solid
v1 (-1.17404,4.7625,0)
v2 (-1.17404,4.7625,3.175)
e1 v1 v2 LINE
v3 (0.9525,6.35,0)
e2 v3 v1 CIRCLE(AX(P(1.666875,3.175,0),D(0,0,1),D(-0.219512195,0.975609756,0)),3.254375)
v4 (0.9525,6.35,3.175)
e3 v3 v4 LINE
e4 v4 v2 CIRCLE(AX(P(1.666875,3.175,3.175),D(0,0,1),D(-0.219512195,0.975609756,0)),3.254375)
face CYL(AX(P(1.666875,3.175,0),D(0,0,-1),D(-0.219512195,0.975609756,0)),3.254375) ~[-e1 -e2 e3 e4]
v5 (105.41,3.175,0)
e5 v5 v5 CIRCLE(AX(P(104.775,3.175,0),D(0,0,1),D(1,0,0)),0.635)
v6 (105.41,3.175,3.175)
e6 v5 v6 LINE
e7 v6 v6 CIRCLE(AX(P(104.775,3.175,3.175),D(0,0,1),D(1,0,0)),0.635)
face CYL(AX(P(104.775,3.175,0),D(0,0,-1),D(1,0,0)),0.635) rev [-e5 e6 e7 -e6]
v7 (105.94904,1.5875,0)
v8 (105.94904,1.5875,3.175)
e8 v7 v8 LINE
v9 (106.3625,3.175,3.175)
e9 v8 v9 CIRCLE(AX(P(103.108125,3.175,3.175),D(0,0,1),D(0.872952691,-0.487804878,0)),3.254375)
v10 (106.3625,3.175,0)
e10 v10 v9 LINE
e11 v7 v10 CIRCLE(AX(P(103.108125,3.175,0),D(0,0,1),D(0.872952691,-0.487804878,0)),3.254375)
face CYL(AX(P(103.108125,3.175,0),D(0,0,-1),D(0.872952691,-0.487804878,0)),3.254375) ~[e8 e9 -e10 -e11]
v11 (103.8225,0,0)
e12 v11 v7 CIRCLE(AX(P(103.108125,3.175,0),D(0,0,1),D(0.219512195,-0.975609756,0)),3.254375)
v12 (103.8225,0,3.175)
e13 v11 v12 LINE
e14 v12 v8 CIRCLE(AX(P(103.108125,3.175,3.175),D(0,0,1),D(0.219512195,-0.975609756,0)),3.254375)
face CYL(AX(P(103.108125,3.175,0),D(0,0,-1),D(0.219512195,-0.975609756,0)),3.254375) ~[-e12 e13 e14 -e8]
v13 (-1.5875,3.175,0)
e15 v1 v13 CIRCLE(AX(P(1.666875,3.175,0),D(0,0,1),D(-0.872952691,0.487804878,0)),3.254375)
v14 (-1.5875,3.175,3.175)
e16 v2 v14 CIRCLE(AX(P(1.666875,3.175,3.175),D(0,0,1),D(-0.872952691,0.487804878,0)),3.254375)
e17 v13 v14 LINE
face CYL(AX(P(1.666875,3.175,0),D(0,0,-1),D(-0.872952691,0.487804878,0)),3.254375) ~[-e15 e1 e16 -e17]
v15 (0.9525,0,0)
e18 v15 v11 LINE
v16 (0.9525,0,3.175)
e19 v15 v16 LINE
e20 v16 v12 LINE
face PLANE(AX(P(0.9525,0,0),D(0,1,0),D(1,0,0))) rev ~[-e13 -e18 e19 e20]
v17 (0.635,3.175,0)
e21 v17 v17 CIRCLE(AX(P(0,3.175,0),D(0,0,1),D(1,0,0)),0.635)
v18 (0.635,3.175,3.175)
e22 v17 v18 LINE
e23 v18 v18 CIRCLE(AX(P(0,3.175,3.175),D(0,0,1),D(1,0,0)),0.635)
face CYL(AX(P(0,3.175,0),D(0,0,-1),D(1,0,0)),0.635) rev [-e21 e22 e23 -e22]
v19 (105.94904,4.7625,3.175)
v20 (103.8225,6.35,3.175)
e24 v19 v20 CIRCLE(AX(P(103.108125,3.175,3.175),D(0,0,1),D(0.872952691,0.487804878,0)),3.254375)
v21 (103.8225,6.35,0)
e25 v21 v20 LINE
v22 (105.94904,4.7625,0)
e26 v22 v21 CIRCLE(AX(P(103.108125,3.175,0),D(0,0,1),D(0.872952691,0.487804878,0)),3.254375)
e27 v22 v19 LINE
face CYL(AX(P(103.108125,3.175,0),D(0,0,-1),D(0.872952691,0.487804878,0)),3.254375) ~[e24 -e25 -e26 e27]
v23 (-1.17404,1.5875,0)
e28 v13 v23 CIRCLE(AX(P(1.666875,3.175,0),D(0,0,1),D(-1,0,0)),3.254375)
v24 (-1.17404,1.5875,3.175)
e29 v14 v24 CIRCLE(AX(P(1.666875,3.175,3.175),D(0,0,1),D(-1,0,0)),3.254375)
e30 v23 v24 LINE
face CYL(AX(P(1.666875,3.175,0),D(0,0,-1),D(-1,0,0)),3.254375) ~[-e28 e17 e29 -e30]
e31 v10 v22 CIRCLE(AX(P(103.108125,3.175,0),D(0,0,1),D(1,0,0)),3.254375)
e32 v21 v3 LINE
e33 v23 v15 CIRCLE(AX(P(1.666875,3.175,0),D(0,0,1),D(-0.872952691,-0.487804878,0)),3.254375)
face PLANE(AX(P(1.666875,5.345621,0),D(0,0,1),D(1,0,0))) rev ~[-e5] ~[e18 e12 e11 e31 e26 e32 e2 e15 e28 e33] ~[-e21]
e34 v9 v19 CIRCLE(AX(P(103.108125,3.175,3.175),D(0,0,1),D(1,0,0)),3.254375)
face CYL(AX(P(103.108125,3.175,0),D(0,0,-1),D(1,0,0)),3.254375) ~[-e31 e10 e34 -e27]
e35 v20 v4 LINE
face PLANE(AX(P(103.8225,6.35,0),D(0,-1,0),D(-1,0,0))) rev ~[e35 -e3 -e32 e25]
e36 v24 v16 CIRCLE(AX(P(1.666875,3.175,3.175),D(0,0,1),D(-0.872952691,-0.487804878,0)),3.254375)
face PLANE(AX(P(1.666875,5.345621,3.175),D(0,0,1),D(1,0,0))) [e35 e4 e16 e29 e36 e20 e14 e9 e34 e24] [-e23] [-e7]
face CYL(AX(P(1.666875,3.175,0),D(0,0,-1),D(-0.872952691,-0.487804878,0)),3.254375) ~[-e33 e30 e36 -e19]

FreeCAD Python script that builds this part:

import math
import FreeCAD as App
import Part
import Sketcher
Q = App.Units.Quantity

doc = App.newDocument("Part")
body = doc.addObject("PartDesign::Body", "Body")

# Sketch on XY plane
sketch1 = body.newObject("Sketcher::SketchObject", "Sketch")
sketch1.AttachmentSupport = (doc.getObject("XY_Plane"), [""])
sketch1.MapMode = "FlatFace"
sketch1.addGeometry(Part.ArcOfCircle(Part.Circle(App.Vector(1.7, 3.2, 0), App.Vector(0, 0, 1), 3.3), math.radians(103), math.radians(151)), False)
sketch1.addGeometry(Part.ArcOfCircle(Part.Circle(App.Vector(1.7, 3.2, 0), App.Vector(0, 0, 1), 3.3), math.radians(151), math.radians(180)), False)
sketch1.addGeometry(Part.ArcOfCircle(Part.Circle(App.Vector(1.7, 3.2, 0), App.Vector(0, 0, 1), 3.3), math.radians(180), math.radians(209)), False)
sketch1.addGeometry(Part.ArcOfCircle(Part.Circle(App.Vector(1.7, 3.2, 0), App.Vector(0, 0, 1), 3.3), math.radians(-151), math.radians(-103)), False)
sketch1.addGeometry(Part.LineSegment(App.Vector(1, 0, 0), App.Vector(103.8, 0, 0)), False)
sketch1.addGeometry(Part.ArcOfCircle(Part.Circle(App.Vector(103.1, 3.2, 0), App.Vector(0, 0, 1), 3.3), math.radians(-77), math.radians(-29)), False)
sketch1.addGeometry(Part.ArcOfCircle(Part.Circle(App.Vector(103.1, 3.2, 0), App.Vector(0, 0, 1), 3.3), math.radians(-29), math.radians(0)), False)
sketch1.addGeometry(Part.ArcOfCircle(Part.Circle(App.Vector(103.1, 3.2, 0), App.Vector(0, 0, 1), 3.3), math.radians(0), math.radians(29)), False)
sketch1.addGeometry(Part.ArcOfCircle(Part.Circle(App.Vector(103.1, 3.2, 0), App.Vector(0, 0, 1), 3.3), math.radians(29), math.radians(77)), False)
sketch1.addGeometry(Part.LineSegment(App.Vector(103.8, 6.3, 0), App.Vector(1, 6.3, 0)), False)
sketch1.addGeometry(Part.Circle(App.Vector(0, 3.2, 0), App.Vector(0, 0, 1), 0.6), False)
sketch1.addGeometry(Part.Circle(App.Vector(104.8, 3.2, 0), App.Vector(0, 0, 1), 0.6), False)
sketch1.addConstraint(Sketcher.Constraint("Tangent", 0, 2, 1, 1))
sketch1.addConstraint(Sketcher.Constraint("Tangent", 1, 2, 2, 1))
sketch1.addConstraint(Sketcher.Constraint("Tangent", 2, 2, 3, 1))
sketch1.addConstraint(Sketcher.Constraint("Coincident", 3, 2, 4, 1))
sketch1.addConstraint(Sketcher.Constraint("Coincident", 4, 2, 5, 1))
sketch1.addConstraint(Sketcher.Constraint("Tangent", 5, 2, 6, 1))
sketch1.addConstraint(Sketcher.Constraint("Tangent", 6, 2, 7, 1))
sketch1.addConstraint(Sketcher.Constraint("Tangent", 7, 2, 8, 1))
sketch1.addConstraint(Sketcher.Constraint("Coincident", 8, 2, 9, 1))
sketch1.addConstraint(Sketcher.Constraint("Coincident", 9, 2, 0, 1))
sketch1.addConstraint(Sketcher.Constraint("Horizontal", 4))
sketch1.addConstraint(Sketcher.Constraint("Horizontal", 9))
sketch1.addConstraint(Sketcher.Constraint("Coincident", 2, 3, 0, 3))
sketch1.addConstraint(Sketcher.Constraint("Coincident", 7, 3, 5, 3))
sketch1.addConstraint(Sketcher.Constraint("Equal", 2, 3))
sketch1.addConstraint(Sketcher.Constraint("Equal", 3, 5))
sketch1.addConstraint(Sketcher.Constraint("Equal", 7, 8))
sketch1.addConstraint(Sketcher.Constraint("Equal", 10, 11))
sketch1.addConstraint(Sketcher.Constraint("PointOnObject", 10, 3, -2))
sketch1.addConstraint(Sketcher.Constraint("PointOnObject", 3, 2, -1))
sketch1.addConstraint(Sketcher.Constraint("Horizontal", 3, 3, 5, 3))
sketch1.addConstraint(Sketcher.Constraint("Horizontal", 8, 3, 10, 3))
sketch1.addConstraint(Sketcher.Constraint("Horizontal", 10, 3, 11, 3))
sketch1.addConstraint(Sketcher.Constraint("Horizontal", 11, 3, 1, 2))
sketch1.addConstraint(Sketcher.Constraint("Horizontal", 2, 2, 5, 2))
sketch1.addConstraint(Sketcher.Constraint("Horizontal", 1, 2, 6, 2))
sketch1.addConstraint(Sketcher.Constraint("Horizontal", 0, 2, 7, 2))
sketch1.addConstraint(Sketcher.Constraint("Vertical", 0, 2, 2, 2))
sketch1.addConstraint(Sketcher.Constraint("Vertical", 4, 2, 8, 2))
sketch1.addConstraint(Sketcher.Constraint("Diameter", 10, Q("0.05 in")))
sketch1.addConstraint(Sketcher.Constraint("DistanceX", 4, 1, 4, 2, Q("4.05 in")))
sketch1.addConstraint(Sketcher.Constraint("DistanceY", -1, 1, 8, 2, Q("0.25 in")))
sketch1.addConstraint(Sketcher.Constraint("DistanceX", -1, 1, 11, 3, Q("4.125 in")))
sketch1.addConstraint(Sketcher.Constraint("DistanceY", -1, 1, 0, 2, Q("0.1875 in")))
sketch1.addConstraint(Sketcher.Constraint("DistanceX", 1, 2, -1, 1, Q("0.0625 in")))
sketch1.addConstraint(Sketcher.Constraint("DistanceX", -1, 1, 6, 2, Q("4.1875 in")))
pad1 = body.newObject("PartDesign::Pad", "Pad")
pad1.Profile = sketch1
pad1.Length = Q("0.125 in")

doc.recompute()
